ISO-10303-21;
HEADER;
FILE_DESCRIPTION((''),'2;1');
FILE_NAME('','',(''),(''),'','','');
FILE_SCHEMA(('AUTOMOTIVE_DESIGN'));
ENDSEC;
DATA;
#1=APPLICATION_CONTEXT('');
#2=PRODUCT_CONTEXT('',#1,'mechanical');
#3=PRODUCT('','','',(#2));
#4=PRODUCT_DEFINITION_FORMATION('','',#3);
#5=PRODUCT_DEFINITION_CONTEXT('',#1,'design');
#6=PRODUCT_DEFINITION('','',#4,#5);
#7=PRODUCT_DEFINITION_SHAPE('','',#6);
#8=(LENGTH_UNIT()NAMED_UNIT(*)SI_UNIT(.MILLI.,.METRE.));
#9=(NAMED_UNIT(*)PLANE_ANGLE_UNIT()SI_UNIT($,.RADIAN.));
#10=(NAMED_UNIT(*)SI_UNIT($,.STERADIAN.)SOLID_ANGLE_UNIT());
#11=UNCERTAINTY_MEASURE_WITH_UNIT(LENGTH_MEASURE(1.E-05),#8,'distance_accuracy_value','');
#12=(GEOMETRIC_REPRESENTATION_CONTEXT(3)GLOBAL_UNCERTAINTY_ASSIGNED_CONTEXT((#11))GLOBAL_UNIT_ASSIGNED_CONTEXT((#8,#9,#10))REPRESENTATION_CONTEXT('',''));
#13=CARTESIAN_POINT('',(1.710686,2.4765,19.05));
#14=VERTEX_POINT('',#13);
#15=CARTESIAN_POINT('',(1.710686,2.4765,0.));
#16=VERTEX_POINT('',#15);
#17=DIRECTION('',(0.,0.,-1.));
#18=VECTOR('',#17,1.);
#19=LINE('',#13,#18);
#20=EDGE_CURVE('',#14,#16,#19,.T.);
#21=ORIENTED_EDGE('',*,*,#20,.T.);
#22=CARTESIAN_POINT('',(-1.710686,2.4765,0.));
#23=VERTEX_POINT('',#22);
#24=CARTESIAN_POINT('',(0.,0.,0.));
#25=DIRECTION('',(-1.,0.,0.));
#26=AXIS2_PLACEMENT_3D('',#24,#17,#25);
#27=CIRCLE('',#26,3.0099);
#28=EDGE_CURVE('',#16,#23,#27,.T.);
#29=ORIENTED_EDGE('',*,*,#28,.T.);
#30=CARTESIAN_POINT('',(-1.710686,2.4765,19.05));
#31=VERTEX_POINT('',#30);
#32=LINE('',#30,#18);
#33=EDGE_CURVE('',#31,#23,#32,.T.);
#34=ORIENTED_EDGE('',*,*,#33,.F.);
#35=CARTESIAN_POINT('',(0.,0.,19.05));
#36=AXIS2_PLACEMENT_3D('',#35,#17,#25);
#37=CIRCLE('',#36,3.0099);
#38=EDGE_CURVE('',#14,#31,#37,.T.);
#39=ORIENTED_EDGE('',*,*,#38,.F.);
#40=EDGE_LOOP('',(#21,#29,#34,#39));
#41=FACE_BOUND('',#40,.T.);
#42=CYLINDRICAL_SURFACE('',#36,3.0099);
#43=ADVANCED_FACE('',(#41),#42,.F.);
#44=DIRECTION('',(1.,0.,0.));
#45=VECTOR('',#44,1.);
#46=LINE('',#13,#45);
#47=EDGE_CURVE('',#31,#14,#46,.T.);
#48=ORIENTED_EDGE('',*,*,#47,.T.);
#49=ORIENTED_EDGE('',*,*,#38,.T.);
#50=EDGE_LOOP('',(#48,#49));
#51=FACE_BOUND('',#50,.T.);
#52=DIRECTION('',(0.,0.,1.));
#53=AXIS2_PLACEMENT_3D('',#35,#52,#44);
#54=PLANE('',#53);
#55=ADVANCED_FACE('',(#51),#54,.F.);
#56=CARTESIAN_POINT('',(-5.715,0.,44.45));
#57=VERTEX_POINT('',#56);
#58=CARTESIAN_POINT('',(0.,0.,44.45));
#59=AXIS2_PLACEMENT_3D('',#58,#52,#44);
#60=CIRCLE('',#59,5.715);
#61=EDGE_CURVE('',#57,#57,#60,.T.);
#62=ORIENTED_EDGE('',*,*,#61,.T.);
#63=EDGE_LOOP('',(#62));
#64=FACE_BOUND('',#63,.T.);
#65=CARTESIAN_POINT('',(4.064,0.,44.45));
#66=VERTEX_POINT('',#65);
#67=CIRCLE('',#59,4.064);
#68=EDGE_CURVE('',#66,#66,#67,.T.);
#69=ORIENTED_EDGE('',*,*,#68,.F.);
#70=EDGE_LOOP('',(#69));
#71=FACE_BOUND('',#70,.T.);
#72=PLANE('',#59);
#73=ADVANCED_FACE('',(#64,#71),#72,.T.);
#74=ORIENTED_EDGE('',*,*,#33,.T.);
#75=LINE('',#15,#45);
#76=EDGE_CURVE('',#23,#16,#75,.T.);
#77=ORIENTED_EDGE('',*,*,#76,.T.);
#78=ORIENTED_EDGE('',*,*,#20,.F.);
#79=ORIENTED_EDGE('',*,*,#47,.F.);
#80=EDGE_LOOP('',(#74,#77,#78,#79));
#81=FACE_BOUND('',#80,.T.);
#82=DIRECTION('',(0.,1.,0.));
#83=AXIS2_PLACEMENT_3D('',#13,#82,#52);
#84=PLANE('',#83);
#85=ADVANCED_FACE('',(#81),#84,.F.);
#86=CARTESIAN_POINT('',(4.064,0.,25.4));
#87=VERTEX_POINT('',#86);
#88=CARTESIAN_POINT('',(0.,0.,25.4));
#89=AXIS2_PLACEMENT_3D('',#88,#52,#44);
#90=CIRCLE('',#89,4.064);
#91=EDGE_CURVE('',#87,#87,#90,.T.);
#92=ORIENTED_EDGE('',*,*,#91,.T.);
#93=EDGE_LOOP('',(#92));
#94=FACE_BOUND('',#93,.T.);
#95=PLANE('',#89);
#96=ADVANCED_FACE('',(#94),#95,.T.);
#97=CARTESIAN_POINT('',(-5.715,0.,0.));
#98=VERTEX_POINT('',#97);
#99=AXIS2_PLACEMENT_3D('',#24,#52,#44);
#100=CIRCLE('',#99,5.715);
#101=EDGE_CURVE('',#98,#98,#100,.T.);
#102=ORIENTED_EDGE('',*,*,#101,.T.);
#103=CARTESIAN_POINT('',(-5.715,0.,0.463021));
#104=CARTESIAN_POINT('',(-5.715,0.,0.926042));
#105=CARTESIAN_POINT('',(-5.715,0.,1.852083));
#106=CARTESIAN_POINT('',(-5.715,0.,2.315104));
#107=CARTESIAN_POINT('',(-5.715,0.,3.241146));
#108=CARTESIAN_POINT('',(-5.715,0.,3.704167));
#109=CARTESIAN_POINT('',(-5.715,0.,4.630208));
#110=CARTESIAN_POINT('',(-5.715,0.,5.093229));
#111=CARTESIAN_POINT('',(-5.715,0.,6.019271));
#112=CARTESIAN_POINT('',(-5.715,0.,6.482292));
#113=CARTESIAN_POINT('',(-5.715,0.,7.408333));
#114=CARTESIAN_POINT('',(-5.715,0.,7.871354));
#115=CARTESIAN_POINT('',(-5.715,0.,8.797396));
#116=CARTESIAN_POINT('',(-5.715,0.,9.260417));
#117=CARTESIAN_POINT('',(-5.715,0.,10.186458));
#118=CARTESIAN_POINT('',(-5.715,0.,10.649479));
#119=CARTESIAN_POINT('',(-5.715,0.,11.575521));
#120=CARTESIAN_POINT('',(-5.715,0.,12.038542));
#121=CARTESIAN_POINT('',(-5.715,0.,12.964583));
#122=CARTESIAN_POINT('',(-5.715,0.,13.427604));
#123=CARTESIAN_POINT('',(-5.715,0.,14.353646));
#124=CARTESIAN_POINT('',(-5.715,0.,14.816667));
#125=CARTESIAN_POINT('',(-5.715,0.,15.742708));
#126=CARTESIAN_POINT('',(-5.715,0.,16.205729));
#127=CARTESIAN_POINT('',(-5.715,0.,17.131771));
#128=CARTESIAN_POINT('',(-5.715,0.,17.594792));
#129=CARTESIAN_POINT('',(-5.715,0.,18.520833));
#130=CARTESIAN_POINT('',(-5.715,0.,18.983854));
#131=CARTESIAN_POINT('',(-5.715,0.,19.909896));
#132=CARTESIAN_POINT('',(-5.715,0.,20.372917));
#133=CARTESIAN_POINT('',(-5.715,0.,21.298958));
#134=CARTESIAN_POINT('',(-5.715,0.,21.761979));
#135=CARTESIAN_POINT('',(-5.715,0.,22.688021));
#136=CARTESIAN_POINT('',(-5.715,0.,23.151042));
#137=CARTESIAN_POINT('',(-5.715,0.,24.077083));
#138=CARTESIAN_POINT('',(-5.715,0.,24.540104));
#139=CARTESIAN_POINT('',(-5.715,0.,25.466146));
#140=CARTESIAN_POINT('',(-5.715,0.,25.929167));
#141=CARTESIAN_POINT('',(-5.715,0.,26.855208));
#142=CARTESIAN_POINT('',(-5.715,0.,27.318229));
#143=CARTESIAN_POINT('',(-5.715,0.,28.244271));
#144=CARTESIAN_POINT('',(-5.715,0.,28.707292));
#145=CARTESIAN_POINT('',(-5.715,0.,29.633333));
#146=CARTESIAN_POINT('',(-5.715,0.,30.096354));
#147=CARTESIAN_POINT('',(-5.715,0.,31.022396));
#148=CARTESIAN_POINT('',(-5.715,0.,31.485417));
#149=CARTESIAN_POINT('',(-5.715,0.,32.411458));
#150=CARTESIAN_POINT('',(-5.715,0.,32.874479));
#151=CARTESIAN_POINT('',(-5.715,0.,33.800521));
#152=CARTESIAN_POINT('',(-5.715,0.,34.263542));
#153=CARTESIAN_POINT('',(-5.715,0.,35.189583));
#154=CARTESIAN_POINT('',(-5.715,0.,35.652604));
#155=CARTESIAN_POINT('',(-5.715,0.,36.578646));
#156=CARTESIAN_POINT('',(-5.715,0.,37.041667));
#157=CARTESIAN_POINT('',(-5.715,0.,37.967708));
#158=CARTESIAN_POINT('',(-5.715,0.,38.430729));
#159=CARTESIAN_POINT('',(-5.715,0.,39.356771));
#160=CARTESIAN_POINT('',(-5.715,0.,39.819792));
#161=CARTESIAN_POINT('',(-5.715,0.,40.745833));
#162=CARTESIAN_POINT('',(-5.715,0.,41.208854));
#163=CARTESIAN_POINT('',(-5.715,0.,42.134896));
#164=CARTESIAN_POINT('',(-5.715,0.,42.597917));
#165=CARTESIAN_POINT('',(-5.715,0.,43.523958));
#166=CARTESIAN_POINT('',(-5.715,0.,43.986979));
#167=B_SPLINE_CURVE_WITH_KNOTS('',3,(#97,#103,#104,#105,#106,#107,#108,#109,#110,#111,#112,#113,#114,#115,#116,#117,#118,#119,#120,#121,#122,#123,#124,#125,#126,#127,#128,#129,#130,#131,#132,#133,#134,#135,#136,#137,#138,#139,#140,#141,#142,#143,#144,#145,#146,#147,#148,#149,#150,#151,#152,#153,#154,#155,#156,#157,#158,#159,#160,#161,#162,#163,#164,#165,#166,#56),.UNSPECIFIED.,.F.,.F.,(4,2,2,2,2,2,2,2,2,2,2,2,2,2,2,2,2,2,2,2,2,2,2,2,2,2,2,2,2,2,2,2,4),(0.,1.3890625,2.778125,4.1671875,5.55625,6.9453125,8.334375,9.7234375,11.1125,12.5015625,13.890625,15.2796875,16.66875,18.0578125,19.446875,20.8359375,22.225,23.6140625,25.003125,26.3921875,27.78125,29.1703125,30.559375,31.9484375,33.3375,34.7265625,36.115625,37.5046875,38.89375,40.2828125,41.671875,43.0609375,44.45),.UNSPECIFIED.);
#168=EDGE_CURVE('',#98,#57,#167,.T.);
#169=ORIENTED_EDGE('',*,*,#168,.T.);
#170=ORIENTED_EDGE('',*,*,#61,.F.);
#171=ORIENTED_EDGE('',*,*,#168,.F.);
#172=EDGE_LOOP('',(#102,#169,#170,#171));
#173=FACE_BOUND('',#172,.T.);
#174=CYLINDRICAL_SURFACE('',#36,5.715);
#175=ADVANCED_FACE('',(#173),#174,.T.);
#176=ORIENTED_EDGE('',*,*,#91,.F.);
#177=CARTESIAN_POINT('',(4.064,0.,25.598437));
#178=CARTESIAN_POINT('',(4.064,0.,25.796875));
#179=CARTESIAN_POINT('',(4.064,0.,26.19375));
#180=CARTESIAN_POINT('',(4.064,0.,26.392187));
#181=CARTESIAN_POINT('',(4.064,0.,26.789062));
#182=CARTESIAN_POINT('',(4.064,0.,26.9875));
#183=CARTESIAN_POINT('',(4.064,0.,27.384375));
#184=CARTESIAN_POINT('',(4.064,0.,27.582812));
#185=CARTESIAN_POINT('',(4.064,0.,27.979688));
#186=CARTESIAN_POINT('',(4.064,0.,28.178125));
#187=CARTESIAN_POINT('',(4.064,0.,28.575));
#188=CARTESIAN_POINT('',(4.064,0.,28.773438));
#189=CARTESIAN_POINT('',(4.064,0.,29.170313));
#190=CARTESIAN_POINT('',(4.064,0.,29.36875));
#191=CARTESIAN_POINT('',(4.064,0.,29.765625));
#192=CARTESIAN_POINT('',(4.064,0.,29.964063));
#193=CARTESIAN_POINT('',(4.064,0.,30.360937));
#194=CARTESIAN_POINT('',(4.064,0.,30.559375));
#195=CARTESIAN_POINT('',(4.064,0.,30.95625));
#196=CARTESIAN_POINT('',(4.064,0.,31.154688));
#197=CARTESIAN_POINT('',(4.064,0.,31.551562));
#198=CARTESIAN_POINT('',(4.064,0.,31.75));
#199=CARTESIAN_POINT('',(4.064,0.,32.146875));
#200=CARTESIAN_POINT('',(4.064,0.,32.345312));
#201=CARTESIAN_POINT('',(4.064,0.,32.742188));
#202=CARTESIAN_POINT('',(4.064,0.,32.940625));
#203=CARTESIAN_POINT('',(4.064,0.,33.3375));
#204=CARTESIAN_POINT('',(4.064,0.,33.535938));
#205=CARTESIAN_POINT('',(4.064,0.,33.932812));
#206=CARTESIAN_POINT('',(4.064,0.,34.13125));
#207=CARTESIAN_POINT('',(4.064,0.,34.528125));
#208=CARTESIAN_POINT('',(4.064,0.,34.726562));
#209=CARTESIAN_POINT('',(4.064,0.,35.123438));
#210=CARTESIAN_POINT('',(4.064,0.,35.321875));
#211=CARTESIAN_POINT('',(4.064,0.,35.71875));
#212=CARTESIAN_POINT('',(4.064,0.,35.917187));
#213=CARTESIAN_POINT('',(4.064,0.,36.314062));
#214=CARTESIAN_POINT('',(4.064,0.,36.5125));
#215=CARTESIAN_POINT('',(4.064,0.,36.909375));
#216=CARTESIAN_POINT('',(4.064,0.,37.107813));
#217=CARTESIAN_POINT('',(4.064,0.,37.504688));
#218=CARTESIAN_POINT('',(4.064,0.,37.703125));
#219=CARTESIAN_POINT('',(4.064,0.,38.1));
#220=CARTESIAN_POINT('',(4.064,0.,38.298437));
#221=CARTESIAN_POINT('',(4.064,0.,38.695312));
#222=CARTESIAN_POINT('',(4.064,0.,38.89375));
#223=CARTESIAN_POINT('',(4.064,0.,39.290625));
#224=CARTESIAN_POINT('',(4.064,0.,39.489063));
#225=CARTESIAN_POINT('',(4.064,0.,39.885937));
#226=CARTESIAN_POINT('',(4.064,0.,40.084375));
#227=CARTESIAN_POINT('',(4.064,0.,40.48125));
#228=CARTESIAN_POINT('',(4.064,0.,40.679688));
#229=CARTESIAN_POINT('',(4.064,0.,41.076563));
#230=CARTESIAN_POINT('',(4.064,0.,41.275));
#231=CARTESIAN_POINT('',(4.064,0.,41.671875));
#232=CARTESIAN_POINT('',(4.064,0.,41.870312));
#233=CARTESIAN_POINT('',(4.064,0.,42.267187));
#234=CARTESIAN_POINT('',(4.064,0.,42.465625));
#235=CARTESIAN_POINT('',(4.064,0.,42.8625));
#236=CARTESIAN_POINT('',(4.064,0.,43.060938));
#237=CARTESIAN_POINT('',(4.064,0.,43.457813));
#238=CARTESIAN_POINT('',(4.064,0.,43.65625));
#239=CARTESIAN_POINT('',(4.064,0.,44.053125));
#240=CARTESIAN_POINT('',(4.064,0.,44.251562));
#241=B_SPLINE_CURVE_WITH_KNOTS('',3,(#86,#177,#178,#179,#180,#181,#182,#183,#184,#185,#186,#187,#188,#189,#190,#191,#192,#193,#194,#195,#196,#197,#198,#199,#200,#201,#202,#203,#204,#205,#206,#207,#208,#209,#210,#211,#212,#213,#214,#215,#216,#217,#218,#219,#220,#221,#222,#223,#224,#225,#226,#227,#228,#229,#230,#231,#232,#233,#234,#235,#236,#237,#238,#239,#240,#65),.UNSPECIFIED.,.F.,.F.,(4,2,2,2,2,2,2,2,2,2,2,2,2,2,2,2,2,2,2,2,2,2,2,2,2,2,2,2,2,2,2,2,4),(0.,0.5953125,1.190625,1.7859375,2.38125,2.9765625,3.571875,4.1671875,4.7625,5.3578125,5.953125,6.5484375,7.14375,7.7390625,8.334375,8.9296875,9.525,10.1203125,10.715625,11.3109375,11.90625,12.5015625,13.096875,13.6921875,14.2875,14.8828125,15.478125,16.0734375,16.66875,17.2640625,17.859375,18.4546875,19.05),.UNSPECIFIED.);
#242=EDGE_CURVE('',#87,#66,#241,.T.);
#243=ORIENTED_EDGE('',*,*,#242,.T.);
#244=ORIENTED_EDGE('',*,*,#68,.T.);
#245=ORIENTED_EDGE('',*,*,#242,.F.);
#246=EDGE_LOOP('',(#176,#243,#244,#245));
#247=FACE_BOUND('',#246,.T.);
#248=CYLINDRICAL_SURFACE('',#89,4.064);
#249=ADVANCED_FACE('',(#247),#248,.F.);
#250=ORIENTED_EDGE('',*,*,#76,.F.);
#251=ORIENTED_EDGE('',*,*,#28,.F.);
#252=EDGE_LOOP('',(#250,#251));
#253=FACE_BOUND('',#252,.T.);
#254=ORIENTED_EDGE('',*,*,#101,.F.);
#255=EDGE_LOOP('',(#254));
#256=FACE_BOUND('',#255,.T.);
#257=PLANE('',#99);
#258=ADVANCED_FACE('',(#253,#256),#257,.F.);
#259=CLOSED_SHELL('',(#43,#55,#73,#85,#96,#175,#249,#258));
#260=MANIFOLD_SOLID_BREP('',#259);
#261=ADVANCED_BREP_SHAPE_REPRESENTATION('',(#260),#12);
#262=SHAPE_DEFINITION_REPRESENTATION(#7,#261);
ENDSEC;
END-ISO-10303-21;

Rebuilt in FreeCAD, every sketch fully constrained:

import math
import FreeCAD as App
import Part
import Sketcher
from FreeCAD import Vector
Q = App.Units.Quantity

doc = App.newDocument("Part")
params = doc.addObject("Spreadsheet::Sheet", "Params")
for row, (alias, value) in enumerate([
    ("sketch1_diameter", "0.45 in"),
    ("pad1_length", "0.75 in"),
    ("sketch3_diameter", "0.45 in"),
    ("pad2_length", "0.5 in"),
    ("sketch4_diameter", "0.45 in"),
    ("pad3_length", "0.5 in"),
    ("sketch5_diameter", "0.32 in"),
    ("pocket2_length", "0.75 in"),
], start=1):
    params.set(f"A{row}", alias)
    params.set(f"B{row}", "=" + value)
    params.setAlias(f"B{row}", alias)

body = doc.addObject("PartDesign::Body", "Body")

sketch1 = body.newObject("Sketcher::SketchObject", "Sketch")
sketch1.AttachmentSupport = (doc.getObject("XY_Plane"), [""])
sketch1.MapMode = "FlatFace"
sketch1.addGeometry(Part.Circle(Vector(0, 0, 0), Vector(0, 0, 1), 6), False)
sketch1.addConstraint([
    Sketcher.Constraint("Coincident", 0, 3, -1, 1),
    Sketcher.Constraint("Diameter", 0, Q("0.45 in")),
])
sketch1.setExpression("Constraints[1]", "Params.sketch1_diameter")
pad1 = body.newObject("PartDesign::Pad", "Pad")
pad1.Profile = sketch1
pad1.setExpression("Length", "Params.pad1_length")

sketch2 = body.newObject("Sketcher::SketchObject", "Sketch001")
sketch2.AttachmentSupport = (doc.getObject("XY_Plane"), [""])
sketch2.MapMode = "FlatFace"
sketch2.addGeometry([
    Part.LineSegment(Vector(-1.7, 2.5, 0), Vector(1.7, 2.5, 0)),
    Part.ArcOfCircle(Part.Circle(Vector(0, 0, 0), Vector(0, 0, 1), 3), math.radians(125), math.radians(415)),
], False)
sketch2.addConstraint([
    Sketcher.Constraint("Coincident", 0, 1, 1, 1),
    Sketcher.Constraint("Coincident", 1, 2, 0, 2),
    Sketcher.Constraint("Horizontal", 0),
    Sketcher.Constraint("Coincident", 1, 3, -1, 1),
    Sketcher.Constraint("Radius", 1, Q("0.1185 in")),
    Sketcher.Constraint("DistanceY", -1, 1, 0, 1, Q("0.0975 in")),
])
pocket1 = body.newObject("PartDesign::Pocket", "Pocket")
pocket1.Profile = sketch2
pocket1.Type = "ThroughAll"
pocket1.Reversed = True

sketch3 = body.newObject("Sketcher::SketchObject", "Sketch002")
sketch3.AttachmentSupport = (doc.getObject("XY_Plane"), [""])
sketch3.MapMode = "FlatFace"
sketch3.AttachmentOffset = App.Placement(Vector(0, 0, 0.75 * 25.4), App.Rotation())
sketch3.addGeometry(Part.Circle(Vector(0, 0, 0), Vector(0, 0, 1), 6), False)
sketch3.addConstraint([
    Sketcher.Constraint("Coincident", 0, 3, -1, 1),
    Sketcher.Constraint("Diameter", 0, Q("0.45 in")),
])
sketch3.setExpression("Constraints[1]", "Params.sketch3_diameter")
pad2 = body.newObject("PartDesign::Pad", "Pad001")
pad2.Profile = sketch3
pad2.setExpression("Length", "Params.pad2_length")

sketch4 = body.newObject("Sketcher::SketchObject", "Sketch003")
sketch4.AttachmentSupport = (doc.getObject("XY_Plane"), [""])
sketch4.MapMode = "FlatFace"
sketch4.AttachmentOffset = App.Placement(Vector(0, 0, 1.25 * 25.4), App.Rotation())
sketch4.addGeometry(Part.Circle(Vector(0, 0, 0), Vector(0, 0, 1), 6), False)
sketch4.addConstraint([
    Sketcher.Constraint("Coincident", 0, 3, -1, 1),
    Sketcher.Constraint("Diameter", 0, Q("0.45 in")),
])
sketch4.setExpression("Constraints[1]", "Params.sketch4_diameter")
pad3 = body.newObject("PartDesign::Pad", "Pad002")
pad3.Profile = sketch4
pad3.setExpression("Length", "Params.pad3_length")

sketch5 = body.newObject("Sketcher::SketchObject", "Sketch004")
sketch5.AttachmentSupport = (doc.getObject("XY_Plane"), [""])
sketch5.MapMode = "FlatFace"
sketch5.AttachmentOffset = App.Placement(Vector(0, 0, 1.75 * 25.4), App.Rotation())
sketch5.addGeometry(Part.Circle(Vector(0, 0, 0), Vector(0, 0, 1), 4.1), False)
sketch5.addConstraint([
    Sketcher.Constraint("Coincident", 0, 3, -1, 1),
    Sketcher.Constraint("Diameter", 0, Q("0.32 in")),
])
sketch5.setExpression("Constraints[1]", "Params.sketch5_diameter")
pocket2 = body.newObject("PartDesign::Pocket", "Pocket001")
pocket2.Profile = sketch5
pocket2.setExpression("Length", "Params.pocket2_length")

doc.recompute()
